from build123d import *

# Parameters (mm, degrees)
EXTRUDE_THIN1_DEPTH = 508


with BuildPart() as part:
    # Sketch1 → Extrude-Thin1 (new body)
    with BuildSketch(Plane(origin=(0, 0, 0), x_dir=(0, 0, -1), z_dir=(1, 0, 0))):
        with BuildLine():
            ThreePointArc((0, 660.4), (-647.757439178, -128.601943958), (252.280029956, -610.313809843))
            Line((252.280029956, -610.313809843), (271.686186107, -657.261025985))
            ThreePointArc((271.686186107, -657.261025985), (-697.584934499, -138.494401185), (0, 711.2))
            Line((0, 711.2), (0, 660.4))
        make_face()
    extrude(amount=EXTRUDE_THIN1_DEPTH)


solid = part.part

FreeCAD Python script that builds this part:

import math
import FreeCAD as App
import Part
import Sketcher

V = App.Vector
Q = App.Units.Quantity

doc = App.newDocument("Part")
body = doc.addObject("PartDesign::Body", "Body")

# Sketch on YZ plane
sketch1 = body.newObject("Sketcher::SketchObject", "Sketch")
sketch1.AttachmentSupport = (doc.getObject("YZ_Plane"), [""])
sketch1.MapMode = "FlatFace"
sketch1.addGeometry([
    Part.ArcOfCircle(Part.Circle(V(0, 0, 0), V(0, 0, 1), 660), math.radians(0), math.radians(202)),
    Part.LineSegment(V(660, 0, 0), V(711, 0, 0)),
    Part.ArcOfCircle(Part.Circle(V(0, 0, 0), V(0, 0, 1), 711), math.radians(0), math.radians(202)),
    Part.LineSegment(V(-657, -272, 0), V(-610, -252, 0)),
], False)
sketch1.addConstraint([
    Sketcher.Constraint("Coincident", 0, 1, 1, 1),
    Sketcher.Constraint("Coincident", 1, 2, 2, 1),
    Sketcher.Constraint("Coincident", 2, 2, 3, 1),
    Sketcher.Constraint("Coincident", 3, 2, 0, 2),
    Sketcher.Constraint("Horizontal", 1),
    Sketcher.Constraint("Coincident", 0, 3, -1, 1),
    Sketcher.Constraint("Coincident", 2, 3, -1, 1),
    Sketcher.Constraint("PointOnObject", 1, 2, -1),
    Sketcher.Constraint("Radius", 0, Q("26 in")),
    Sketcher.Constraint("Radius", 2, Q("28 in")),
    Sketcher.Constraint("DistanceX", 3, 2, -1, 1, Q("610.31381 mm")),
    Sketcher.Constraint("Angle", 3, Q("22.458301 deg")),
])
pad1 = body.newObject("PartDesign::Pad", "Pad")
pad1.Profile = sketch1
pad1.Length = Q("20 in")

doc.recompute()
